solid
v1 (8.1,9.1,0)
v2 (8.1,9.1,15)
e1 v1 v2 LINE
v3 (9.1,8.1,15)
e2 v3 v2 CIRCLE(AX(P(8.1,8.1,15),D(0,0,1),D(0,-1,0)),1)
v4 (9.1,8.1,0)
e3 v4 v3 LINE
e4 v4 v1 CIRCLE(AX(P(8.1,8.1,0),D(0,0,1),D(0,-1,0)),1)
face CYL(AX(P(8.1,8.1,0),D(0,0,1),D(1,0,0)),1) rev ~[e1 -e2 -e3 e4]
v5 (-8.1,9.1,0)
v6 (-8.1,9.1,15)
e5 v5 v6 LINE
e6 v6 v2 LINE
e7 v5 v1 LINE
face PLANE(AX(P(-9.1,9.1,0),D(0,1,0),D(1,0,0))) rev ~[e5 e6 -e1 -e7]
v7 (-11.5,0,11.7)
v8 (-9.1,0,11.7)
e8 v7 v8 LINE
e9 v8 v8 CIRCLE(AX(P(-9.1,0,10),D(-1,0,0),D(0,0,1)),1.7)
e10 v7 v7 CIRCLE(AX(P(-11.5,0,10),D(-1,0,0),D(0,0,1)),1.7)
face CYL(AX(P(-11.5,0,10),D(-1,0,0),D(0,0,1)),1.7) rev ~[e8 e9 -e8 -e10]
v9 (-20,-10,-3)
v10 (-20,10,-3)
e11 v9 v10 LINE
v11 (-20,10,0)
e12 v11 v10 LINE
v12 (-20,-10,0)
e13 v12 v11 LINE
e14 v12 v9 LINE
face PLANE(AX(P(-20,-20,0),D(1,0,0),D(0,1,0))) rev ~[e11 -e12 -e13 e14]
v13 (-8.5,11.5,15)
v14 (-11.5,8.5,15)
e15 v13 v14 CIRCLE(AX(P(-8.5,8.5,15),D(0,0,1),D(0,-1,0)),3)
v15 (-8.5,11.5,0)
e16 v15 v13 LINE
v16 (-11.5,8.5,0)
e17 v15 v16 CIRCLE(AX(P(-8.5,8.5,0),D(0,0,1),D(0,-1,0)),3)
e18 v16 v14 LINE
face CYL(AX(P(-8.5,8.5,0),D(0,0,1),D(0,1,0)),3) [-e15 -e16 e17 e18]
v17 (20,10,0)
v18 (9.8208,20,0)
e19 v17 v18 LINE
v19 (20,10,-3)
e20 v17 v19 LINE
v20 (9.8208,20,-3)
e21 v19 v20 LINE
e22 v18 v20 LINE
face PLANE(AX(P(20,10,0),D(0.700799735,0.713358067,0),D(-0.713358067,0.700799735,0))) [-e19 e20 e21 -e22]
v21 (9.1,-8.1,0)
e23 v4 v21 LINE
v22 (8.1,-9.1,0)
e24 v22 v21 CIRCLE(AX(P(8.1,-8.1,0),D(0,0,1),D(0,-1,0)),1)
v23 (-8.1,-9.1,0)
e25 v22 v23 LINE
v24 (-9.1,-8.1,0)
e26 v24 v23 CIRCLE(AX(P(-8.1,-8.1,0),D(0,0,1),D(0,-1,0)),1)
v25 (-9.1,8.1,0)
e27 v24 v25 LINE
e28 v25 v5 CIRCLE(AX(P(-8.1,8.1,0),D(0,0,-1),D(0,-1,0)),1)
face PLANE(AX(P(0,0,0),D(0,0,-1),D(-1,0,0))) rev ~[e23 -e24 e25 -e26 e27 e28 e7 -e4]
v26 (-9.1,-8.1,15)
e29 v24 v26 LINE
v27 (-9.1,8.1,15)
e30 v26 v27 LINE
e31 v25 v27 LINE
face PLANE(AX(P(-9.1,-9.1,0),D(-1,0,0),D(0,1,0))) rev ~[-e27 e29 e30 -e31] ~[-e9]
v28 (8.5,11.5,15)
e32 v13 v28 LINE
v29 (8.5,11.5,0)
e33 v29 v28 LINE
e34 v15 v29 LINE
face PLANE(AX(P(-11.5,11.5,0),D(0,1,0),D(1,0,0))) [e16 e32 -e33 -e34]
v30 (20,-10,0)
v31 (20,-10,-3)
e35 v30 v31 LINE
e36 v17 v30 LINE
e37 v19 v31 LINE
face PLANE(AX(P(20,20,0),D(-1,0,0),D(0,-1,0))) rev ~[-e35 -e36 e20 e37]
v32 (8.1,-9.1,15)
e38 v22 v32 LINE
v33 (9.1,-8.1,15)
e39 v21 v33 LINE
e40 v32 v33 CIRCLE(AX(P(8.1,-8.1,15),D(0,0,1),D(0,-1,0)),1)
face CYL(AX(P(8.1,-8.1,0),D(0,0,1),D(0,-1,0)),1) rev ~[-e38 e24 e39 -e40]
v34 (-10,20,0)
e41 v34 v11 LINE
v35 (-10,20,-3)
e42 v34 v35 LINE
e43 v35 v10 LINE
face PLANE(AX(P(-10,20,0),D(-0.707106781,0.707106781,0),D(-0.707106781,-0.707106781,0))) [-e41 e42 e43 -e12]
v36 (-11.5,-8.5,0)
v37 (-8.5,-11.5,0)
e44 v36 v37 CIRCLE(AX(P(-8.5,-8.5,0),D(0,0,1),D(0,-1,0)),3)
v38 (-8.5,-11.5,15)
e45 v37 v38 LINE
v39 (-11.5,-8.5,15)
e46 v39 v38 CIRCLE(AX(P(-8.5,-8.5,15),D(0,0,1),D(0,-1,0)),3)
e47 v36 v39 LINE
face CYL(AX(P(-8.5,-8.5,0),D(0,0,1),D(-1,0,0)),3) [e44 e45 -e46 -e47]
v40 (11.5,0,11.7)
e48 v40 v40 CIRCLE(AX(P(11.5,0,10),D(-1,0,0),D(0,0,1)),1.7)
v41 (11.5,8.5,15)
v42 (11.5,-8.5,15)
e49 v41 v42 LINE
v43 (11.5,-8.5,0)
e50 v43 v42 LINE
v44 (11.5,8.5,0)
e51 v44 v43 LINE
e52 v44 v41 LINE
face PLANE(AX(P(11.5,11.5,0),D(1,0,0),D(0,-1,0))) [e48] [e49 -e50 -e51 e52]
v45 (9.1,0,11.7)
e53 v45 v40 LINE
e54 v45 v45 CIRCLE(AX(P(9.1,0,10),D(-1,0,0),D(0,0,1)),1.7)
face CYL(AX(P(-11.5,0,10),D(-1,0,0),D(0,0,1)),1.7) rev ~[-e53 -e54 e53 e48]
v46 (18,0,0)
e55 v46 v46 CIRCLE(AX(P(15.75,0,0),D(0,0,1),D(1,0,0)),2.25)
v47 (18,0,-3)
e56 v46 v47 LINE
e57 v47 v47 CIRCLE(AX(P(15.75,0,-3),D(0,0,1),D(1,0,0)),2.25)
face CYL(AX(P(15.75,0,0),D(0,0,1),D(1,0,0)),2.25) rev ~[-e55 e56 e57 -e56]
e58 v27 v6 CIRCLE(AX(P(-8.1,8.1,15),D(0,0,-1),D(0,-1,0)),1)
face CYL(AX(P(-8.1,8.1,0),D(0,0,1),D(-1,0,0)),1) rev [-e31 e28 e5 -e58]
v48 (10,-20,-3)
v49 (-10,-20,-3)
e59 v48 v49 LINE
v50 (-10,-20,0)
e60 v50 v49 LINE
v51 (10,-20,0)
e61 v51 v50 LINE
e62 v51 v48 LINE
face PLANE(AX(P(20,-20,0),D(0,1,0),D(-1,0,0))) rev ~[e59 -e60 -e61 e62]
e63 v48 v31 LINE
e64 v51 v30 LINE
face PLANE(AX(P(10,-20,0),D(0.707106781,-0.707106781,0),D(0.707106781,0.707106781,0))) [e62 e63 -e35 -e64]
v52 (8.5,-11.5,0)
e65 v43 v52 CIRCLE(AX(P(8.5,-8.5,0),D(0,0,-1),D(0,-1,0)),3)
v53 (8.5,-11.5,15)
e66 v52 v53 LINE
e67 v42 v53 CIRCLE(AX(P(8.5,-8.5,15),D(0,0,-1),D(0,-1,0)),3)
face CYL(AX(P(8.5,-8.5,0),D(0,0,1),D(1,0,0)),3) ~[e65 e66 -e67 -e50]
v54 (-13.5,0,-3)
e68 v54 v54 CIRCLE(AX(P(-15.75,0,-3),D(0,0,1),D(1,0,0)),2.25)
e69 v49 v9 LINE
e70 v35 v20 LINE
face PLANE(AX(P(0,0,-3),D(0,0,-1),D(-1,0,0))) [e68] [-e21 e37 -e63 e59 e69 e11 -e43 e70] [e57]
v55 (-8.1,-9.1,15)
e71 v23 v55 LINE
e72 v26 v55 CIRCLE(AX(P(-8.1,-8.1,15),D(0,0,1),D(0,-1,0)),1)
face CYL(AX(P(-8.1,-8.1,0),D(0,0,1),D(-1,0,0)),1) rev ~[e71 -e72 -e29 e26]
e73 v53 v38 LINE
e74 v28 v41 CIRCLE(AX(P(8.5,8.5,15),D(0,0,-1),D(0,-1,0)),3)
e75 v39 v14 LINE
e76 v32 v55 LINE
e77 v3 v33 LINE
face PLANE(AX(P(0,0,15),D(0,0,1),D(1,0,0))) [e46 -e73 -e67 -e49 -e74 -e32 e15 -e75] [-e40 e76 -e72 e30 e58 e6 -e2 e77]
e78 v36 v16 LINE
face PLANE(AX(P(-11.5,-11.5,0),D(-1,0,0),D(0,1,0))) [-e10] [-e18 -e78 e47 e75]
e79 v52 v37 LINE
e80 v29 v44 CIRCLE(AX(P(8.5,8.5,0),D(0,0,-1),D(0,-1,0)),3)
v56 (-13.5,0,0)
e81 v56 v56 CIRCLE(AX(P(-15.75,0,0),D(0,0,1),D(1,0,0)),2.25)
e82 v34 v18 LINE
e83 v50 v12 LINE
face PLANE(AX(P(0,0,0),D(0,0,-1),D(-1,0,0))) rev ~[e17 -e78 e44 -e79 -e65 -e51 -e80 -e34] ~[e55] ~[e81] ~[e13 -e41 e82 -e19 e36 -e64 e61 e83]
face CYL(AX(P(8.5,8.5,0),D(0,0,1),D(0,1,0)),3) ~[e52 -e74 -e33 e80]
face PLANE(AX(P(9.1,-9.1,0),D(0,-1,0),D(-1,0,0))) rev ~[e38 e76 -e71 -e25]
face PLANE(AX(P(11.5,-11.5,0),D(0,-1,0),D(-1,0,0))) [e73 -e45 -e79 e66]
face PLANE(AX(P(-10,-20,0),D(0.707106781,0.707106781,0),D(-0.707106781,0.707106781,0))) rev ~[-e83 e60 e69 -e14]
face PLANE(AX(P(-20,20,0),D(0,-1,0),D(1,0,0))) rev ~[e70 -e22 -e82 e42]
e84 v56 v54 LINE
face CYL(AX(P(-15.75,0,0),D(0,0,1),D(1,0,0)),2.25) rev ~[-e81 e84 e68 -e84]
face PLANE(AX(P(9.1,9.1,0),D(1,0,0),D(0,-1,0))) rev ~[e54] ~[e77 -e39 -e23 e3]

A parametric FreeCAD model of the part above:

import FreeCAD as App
import Part
import Sketcher
from FreeCAD import Vector
Q = App.Units.Quantity


def edges_at(feature, points):
    """Names of the edges that pass closest to the given points."""
    edges = feature.Shape.Edges
    near = lambda p: min(range(len(edges)), key=lambda i: edges[i].distToShape(Part.Vertex(*p))[0])
    return sorted({f"Edge{near(p) + 1}" for p in points})


def add_polygon(sketch, points):
    """Adds a closed chain of lines whose ends are joined by coincident constraints."""
    first, n = sketch.GeometryCount, len(points)
    for a, b in zip(points, points[1:] + points[:1]):
        sketch.addGeometry(Part.LineSegment(App.Vector(*a, 0), App.Vector(*b, 0)), False)
    for i in range(n):
        sketch.addConstraint(Sketcher.Constraint("Coincident", first + i, 2, first + (i + 1) % n, 1))

doc = App.newDocument("Part")
body = doc.addObject("PartDesign::Body", "Body")

sketch1 = body.newObject("Sketcher::SketchObject", "Sketch")
sketch1.AttachmentSupport = (doc.getObject("XY_Plane"), [""])
sketch1.MapMode = "FlatFace"
add_polygon(sketch1, [(12, 12), (-12, 12), (-12, -12), (12, -12)])
add_polygon(sketch1, [(-9, -9), (-9, 9), (9, 9), (9, -9)])
sketch1.addConstraint([
    Sketcher.Constraint("Horizontal", 0),
    Sketcher.Constraint("Vertical", 1),
    Sketcher.Constraint("Horizontal", 2),
    Sketcher.Constraint("Vertical", 3),
    Sketcher.Constraint("Vertical", 4),
    Sketcher.Constraint("Horizontal", 5),
    Sketcher.Constraint("Vertical", 6),
    Sketcher.Constraint("Horizontal", 7),
    Sketcher.Constraint("Symmetric", 0, 2, 2, 2, -1, 1),
    Sketcher.Constraint("Symmetric", 4, 2, 6, 2, -1, 1),
    Sketcher.Constraint("Equal", 2, 1),
    Sketcher.Constraint("Equal", 7, 4),
    Sketcher.Constraint("DistanceX", 0, 2, 0, 1, Q("23 mm")),
    Sketcher.Constraint("DistanceX", 5, 1, 5, 2, Q("18.2 mm")),
])
pad1 = body.newObject("PartDesign::Pad", "Pad")
pad1.Profile = sketch1
pad1.Length = 15

sketch2 = body.newObject("Sketcher::SketchObject", "Sketch001")
sketch2.AttachmentSupport = (doc.getObject("YZ_Plane"), [""])
sketch2.MapMode = "FlatFace"
sketch2.AttachmentOffset = App.Placement(Vector(0, 0, -11.5), App.Rotation())
sketch2.addGeometry(Part.Circle(Vector(0, 10, 0), Vector(0, 0, 1), 1.7), False)
sketch2.addConstraint([
    Sketcher.Constraint("PointOnObject", 0, 3, -2),
    Sketcher.Constraint("Diameter", 0, Q("3.4 mm")),
    Sketcher.Constraint("DistanceY", -1, 1, 0, 3, Q("10 mm")),
])
pocket1 = body.newObject("PartDesign::Pocket", "Pocket")
pocket1.Profile = sketch2
pocket1.Length = 30
pocket1.Reversed = True

sketch3 = body.newObject("Sketcher::SketchObject", "Sketch002")
sketch3.AttachmentSupport = (doc.getObject("XY_Plane"), [""])
sketch3.MapMode = "FlatFace"
add_polygon(sketch3, [(-20, -20), (-20, 20), (20, 20), (20, -20)])
sketch3.addConstraint([
    Sketcher.Constraint("Vertical", 0),
    Sketcher.Constraint("Horizontal", 1),
    Sketcher.Constraint("Vertical", 2),
    Sketcher.Constraint("Horizontal", 3),
    Sketcher.Constraint("Symmetric", 0, 2, 2, 2, -1, 1),
    Sketcher.Constraint("Equal", 3, 0),
    Sketcher.Constraint("DistanceX", 1, 1, 1, 2, Q("40 mm")),
])
pad2 = body.newObject("PartDesign::Pad", "Pad001")
pad2.Profile = sketch3
pad2.Length = 3
pad2.Reversed = True

sketch4 = body.newObject("Sketcher::SketchObject", "Sketch003")
sketch4.AttachmentSupport = (doc.getObject("XY_Plane"), [""])
sketch4.MapMode = "FlatFace"
sketch4.addGeometry([
    Part.Circle(Vector(-15.8, 0, 0), Vector(0, 0, 1), 2.2),
    Part.Circle(Vector(15.8, 0, 0), Vector(0, 0, 1), 2.2),
], False)
sketch4.addConstraint([
    Sketcher.Constraint("Equal", 0, 1),
    Sketcher.Constraint("Symmetric", 0, 3, 1, 3, -1, 1),
    Sketcher.Constraint("PointOnObject", 0, 3, -1),
    Sketcher.Constraint("Diameter", 0, Q("4.5 mm")),
    Sketcher.Constraint("DistanceX", 0, 3, 1, 3, Q("31.5 mm")),
])
pocket2 = body.newObject("PartDesign::Pocket", "Pocket001")
pocket2.Profile = sketch4
pocket2.Length = 3

sketch5 = body.newObject("Sketcher::SketchObject", "Sketch004")
sketch5.AttachmentSupport = (doc.getObject("XY_Plane"), [""])
sketch5.MapMode = "FlatFace"
add_polygon(sketch5, [(-20, -10), (-20, -20), (-10, -20)])
add_polygon(sketch5, [(-20, 20), (-20, 10), (-10, 20)])
add_polygon(sketch5, [(20, -10), (10, -20), (20, -20)])
add_polygon(sketch5, [(20, 20), (10, 20), (20, 10)])
sketch5.addConstraint([
    Sketcher.Constraint("Vertical", 0),
    Sketcher.Constraint("Horizontal", 1),
    Sketcher.Constraint("Vertical", 3),
    Sketcher.Constraint("Horizontal", 5),
    Sketcher.Constraint("Horizontal", 7),
    Sketcher.Constraint("Vertical", 8),
    Sketcher.Constraint("Horizontal", 9),
    Sketcher.Constraint("Vertical", 11),
    Sketcher.Constraint("Symmetric", 4, 2, 6, 2, -1, 1),
    Sketcher.Constraint("Symmetric", 3, 2, 8, 2, -1, 1),
    Sketcher.Constraint("Symmetric", 2, 2, 10, 2, -1, 1),
    Sketcher.Constraint("Symmetric", 1, 2, 6, 2, -2),
    Sketcher.Constraint("Symmetric", 2, 2, 8, 2, -2),
    Sketcher.Constraint("Perpendicular", 2, 4),
    Sketcher.Constraint("Horizontal", 5, 2, 9, 2),
    Sketcher.Constraint("DistanceX", 1, 1, 1, 2, Q("10 mm")),
    Sketcher.Constraint("DistanceX", 1, 2, -1, 1, Q("10 mm")),
    Sketcher.Constraint("DistanceY", 2, 2, -1, 1, Q("10 mm")),
    Sketcher.Constraint("DistanceX", 9, 2, 9, 1, Q("10.1792 mm")),
])
pocket3 = body.newObject("PartDesign::Pocket", "Pocket002")
pocket3.Profile = sketch5
pocket3.Length = 3
doc.recompute()

fillet = body.newObject("PartDesign::Fillet", "Fillet")
fillet.Base = (pocket3, edges_at(pocket3, [
    (-11.5, 11.5, 7.5),
    (11.5, 11.5, 7.5),
    (11.5, -11.5, 7.5),
    (-11.5, -11.5, 7.5),
]))
fillet.Radius = 3
doc.recompute()

fillet2 = body.newObject("PartDesign::Fillet", "Fillet001")
fillet2.Base = (fillet, edges_at(fillet, [
    (-9.1, 9.1, 7.5),
    (9.1, 9.1, 7.5),
    (-9.1, -9.1, 7.5),
    (9.1, -9.1, 7.5),
]))
fillet2.Radius = 1

doc.recompute()
